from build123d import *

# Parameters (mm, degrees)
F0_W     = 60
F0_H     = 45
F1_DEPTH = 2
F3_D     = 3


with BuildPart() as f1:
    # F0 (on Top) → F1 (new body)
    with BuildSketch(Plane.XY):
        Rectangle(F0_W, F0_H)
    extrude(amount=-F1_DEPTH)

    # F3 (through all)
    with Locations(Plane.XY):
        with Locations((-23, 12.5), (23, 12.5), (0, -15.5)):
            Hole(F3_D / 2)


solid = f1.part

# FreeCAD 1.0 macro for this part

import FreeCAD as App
import Part
import Sketcher


def add_polygon(sketch, points):
    """Adds a closed chain of lines whose ends are joined by coincident constraints."""
    first, n = sketch.GeometryCount, len(points)
    for a, b in zip(points, points[1:] + points[:1]):
        sketch.addGeometry(Part.LineSegment(App.Vector(*a, 0), App.Vector(*b, 0)), False)
    for i in range(n):
        sketch.addConstraint(Sketcher.Constraint("Coincident", first + i, 2, first + (i + 1) % n, 1))

doc = App.newDocument("Part")
body = doc.addObject("PartDesign::Body", "Body")

# Sketch on XY plane
sketch1 = doc.addObject("Sketcher::SketchObject", "Sketch")
body.addObject(sketch1)
sketch1.AttachmentSupport = (doc.XY_Plane, [""])
sketch1.MapMode = "FlatFace"
add_polygon(sketch1, [(-30, 22), (-30, -22), (30, -22), (30, 22)])  # lines 0-3
sketch1.addConstraint([
    Sketcher.Constraint("Vertical", 0),
    Sketcher.Constraint("Horizontal", 1),
    Sketcher.Constraint("Vertical", 2),
    Sketcher.Constraint("Horizontal", 3),
    Sketcher.Constraint("Symmetric", 0, 2, 2, 2, -1, 1),
    Sketcher.Constraint("DistanceX", 1, 1, 1, 2, 60.0),
    Sketcher.Constraint("DistanceY", 0, 2, 0, 1, 45.0),
])
pad1 = doc.addObject("PartDesign::Pad", "Pad")
body.addObject(pad1)
pad1.Profile = sketch1
pad1.Length = 2
pad1.Reversed = True

# Sketch on XY plane
sketch2 = doc.addObject("Sketcher::SketchObject", "Sketch001")
body.addObject(sketch2)
sketch2.AttachmentSupport = (doc.XY_Plane, [""])
sketch2.MapMode = "FlatFace"
sketch2.addGeometry([
    Part.Circle(App.Vector(-23, 12.5, 0), App.Vector(0, 0, 1), 1.5),
    Part.Circle(App.Vector(23, 12.5, 0), App.Vector(0, 0, 1), 1.5),
    Part.Circle(App.Vector(0, -15.5, 0), App.Vector(0, 0, 1), 1.5),
], False)
sketch2.addConstraint([
    Sketcher.Constraint("Equal", 0, 1),
    Sketcher.Constraint("Equal", 1, 2),
    Sketcher.Constraint("Symmetric", 0, 3, 1, 3, -2),
    Sketcher.Constraint("PointOnObject", 2, 3, -2),
    Sketcher.Constraint("Diameter", 0, 3.0),
    Sketcher.Constraint("DistanceX", 0, 3, -1, 1, 23.0),
    Sketcher.Constraint("DistanceY", 2, 3, 0, 3, 28.0),
    Sketcher.Constraint("DistanceY", -1, 1, 0, 3, 12.5),
])
doc.recompute()
hole = doc.addObject("PartDesign::Hole", "Hole")
body.addObject(hole)
hole.Profile = sketch2
hole.ThreadType = "None"
hole.Diameter = 3
hole.DepthType = "ThroughAll"

doc.recompute()
